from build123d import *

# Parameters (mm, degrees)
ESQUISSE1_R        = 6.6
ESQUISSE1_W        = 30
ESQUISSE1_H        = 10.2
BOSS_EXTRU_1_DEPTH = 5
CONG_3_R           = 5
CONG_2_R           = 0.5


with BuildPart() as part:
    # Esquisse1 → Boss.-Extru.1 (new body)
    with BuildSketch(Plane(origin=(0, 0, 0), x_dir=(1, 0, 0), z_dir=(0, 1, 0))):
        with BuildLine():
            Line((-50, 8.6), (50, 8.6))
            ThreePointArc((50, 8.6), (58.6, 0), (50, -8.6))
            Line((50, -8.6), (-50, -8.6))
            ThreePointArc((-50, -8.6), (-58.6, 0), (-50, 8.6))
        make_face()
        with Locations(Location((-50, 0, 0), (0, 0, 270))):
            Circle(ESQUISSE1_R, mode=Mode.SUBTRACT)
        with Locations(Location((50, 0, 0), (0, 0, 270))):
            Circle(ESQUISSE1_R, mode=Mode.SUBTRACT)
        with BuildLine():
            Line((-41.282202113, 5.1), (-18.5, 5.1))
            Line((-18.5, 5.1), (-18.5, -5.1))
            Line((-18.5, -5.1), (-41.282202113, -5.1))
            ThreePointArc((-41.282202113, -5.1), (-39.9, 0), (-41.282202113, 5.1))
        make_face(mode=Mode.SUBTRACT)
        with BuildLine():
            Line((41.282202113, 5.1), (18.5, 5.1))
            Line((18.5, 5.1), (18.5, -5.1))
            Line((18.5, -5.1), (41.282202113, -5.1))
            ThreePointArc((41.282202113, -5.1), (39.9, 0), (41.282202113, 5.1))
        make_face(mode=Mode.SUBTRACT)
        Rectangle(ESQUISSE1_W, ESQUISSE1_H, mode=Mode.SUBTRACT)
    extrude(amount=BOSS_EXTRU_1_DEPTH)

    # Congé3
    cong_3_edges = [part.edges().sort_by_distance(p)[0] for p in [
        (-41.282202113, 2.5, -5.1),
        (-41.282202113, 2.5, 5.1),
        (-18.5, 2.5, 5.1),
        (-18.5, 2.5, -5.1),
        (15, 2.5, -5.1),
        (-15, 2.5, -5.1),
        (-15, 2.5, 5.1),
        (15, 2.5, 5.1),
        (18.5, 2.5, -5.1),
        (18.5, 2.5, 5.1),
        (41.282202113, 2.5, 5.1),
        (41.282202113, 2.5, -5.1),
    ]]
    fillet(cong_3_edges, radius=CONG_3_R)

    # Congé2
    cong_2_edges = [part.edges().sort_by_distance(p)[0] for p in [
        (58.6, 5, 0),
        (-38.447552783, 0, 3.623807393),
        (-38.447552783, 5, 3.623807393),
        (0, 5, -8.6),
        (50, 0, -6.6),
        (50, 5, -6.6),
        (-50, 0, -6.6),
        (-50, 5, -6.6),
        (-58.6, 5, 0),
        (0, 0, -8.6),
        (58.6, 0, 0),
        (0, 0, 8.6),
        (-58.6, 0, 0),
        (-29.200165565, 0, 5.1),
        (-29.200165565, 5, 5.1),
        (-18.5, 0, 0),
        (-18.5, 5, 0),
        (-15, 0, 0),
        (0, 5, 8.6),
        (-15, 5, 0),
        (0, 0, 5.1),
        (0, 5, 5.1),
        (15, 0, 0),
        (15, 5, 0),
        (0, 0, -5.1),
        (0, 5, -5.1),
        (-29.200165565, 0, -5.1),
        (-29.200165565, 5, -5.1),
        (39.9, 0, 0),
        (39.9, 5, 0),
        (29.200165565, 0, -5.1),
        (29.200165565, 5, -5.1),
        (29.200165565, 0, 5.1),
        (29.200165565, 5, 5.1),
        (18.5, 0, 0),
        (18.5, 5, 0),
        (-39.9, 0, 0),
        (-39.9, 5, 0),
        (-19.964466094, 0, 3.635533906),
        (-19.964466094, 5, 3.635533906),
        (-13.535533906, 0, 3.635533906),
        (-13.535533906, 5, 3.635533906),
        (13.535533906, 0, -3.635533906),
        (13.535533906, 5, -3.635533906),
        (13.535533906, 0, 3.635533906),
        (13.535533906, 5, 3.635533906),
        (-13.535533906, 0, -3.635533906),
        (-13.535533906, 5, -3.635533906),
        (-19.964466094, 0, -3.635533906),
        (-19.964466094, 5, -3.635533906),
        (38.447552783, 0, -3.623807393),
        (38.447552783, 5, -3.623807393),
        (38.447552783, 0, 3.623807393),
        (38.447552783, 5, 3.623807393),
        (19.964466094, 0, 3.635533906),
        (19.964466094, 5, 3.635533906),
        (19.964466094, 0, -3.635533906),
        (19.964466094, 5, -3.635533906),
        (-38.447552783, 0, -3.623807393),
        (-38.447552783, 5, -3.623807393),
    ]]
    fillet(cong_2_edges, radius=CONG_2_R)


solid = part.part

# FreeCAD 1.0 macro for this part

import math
import FreeCAD as App
import Part
import Sketcher
from FreeCAD import Vector
Q = App.Units.Quantity


def edges_at(feature, points):
    """Names of the edges that pass closest to the given points."""
    edges = feature.Shape.Edges
    near = lambda p: min(range(len(edges)), key=lambda i: edges[i].distToShape(Part.Vertex(*p))[0])
    return sorted({f"Edge{near(p) + 1}" for p in points})


def add_polygon(sketch, points):
    """Adds a closed chain of lines whose ends are joined by coincident constraints."""
    first, n = sketch.GeometryCount, len(points)
    for a, b in zip(points, points[1:] + points[:1]):
        sketch.addGeometry(Part.LineSegment(App.Vector(*a, 0), App.Vector(*b, 0)), False)
    for i in range(n):
        sketch.addConstraint(Sketcher.Constraint("Coincident", first + i, 2, first + (i + 1) % n, 1))

doc = App.newDocument("Part")
body = doc.addObject("PartDesign::Body", "Body")

# Sketch on XZ plane
sketch1 = body.newObject("Sketcher::SketchObject", "Sketch")
sketch1.AttachmentSupport = (doc.getObject("XZ_Plane"), [""])
sketch1.MapMode = "FlatFace"
sketch1.addGeometry(Part.LineSegment(Vector(50, -8.6, 0), Vector(-50, -8.6, 0)), False)  # 0
sketch1.addGeometry(Part.ArcOfCircle(Part.Circle(Vector(-50, 0, 0), Vector(0, 0, 1), 8.6), math.radians(90), math.radians(270)), False)  # 1
sketch1.addGeometry(Part.LineSegment(Vector(-50, 8.6, 0), Vector(50, 8.6, 0)), False)  # 2
sketch1.addGeometry(Part.ArcOfCircle(Part.Circle(Vector(50, 0, 0), Vector(0, 0, 1), 8.6), math.radians(-90), math.radians(90)), False)  # 3
sketch1.addGeometry(Part.Circle(Vector(50, 0, 0), Vector(0, 0, 1), 6.6), False)  # 4
sketch1.addGeometry(Part.ArcOfCircle(Part.Circle(Vector(50, 0, 0), Vector(0, 0, 1), 10.1), math.radians(149.671934), math.radians(210.328066)), False)  # 5
sketch1.addGeometry(Part.LineSegment(Vector(41.282202, 5.1, 0), Vector(18.5, 5.1, 0)), False)  # 6
sketch1.addGeometry(Part.LineSegment(Vector(18.5, 5.1, 0), Vector(18.5, -5.1, 0)), False)  # 7
sketch1.addGeometry(Part.LineSegment(Vector(18.5, -5.1, 0), Vector(41.282202, -5.1, 0)), False)  # 8
add_polygon(sketch1, [(-15, 5.1), (-15, -5.1), (15, -5.1), (15, 5.1)])  # lines 9-12
sketch1.addGeometry(Part.LineSegment(Vector(-41.282202, -5.1, 0), Vector(-18.5, -5.1, 0)), False)  # 13
sketch1.addGeometry(Part.LineSegment(Vector(-18.5, -5.1, 0), Vector(-18.5, 5.1, 0)), False)  # 14
sketch1.addGeometry(Part.LineSegment(Vector(-18.5, 5.1, 0), Vector(-41.282202, 5.1, 0)), False)  # 15
sketch1.addGeometry(Part.ArcOfCircle(Part.Circle(Vector(-50, 0, 0), Vector(0, 0, 1), 10.1), math.radians(-30.328066), math.radians(30.328066)), False)  # 16
sketch1.addGeometry(Part.Circle(Vector(-50, 0, 0), Vector(0, 0, 1), 6.6), False)  # 17
sketch1.addConstraint([
    Sketcher.Constraint("Tangent", 0, 2, 1, 2),
    Sketcher.Constraint("Tangent", 1, 1, 2, 1),
    Sketcher.Constraint("Tangent", 2, 2, 3, 2),
    Sketcher.Constraint("Tangent", 3, 1, 0, 1),
    Sketcher.Constraint("Coincident", 5, 1, 6, 1),
    Sketcher.Constraint("Coincident", 6, 2, 7, 1),
    Sketcher.Constraint("Coincident", 7, 2, 8, 1),
    Sketcher.Constraint("Coincident", 8, 2, 5, 2),
    Sketcher.Constraint("Coincident", 13, 2, 14, 1),
    Sketcher.Constraint("Coincident", 14, 2, 15, 1),
    Sketcher.Constraint("Coincident", 15, 2, 16, 2),
    Sketcher.Constraint("Coincident", 16, 1, 13, 1),
    Sketcher.Constraint("Horizontal", 0),
    Sketcher.Constraint("Horizontal", 2),
    Sketcher.Constraint("Horizontal", 6),
    Sketcher.Constraint("Vertical", 7),
    Sketcher.Constraint("Horizontal", 8),
    Sketcher.Constraint("Vertical", 9),
    Sketcher.Constraint("Horizontal", 10),
    Sketcher.Constraint("Vertical", 11),
    Sketcher.Constraint("Horizontal", 12),
    Sketcher.Constraint("Horizontal", 13),
    Sketcher.Constraint("Vertical", 14),
    Sketcher.Constraint("Horizontal", 15),
    Sketcher.Constraint("Coincident", 4, 3, 3, 3),
    Sketcher.Constraint("Coincident", 5, 3, 3, 3),
    Sketcher.Constraint("Coincident", 16, 3, 1, 3),
    Sketcher.Constraint("Coincident", 17, 3, 1, 3),
    Sketcher.Constraint("Equal", 5, 16),
    Sketcher.Constraint("Equal", 4, 17),
    Sketcher.Constraint("Symmetric", 1, 3, 3, 3, -1, 1),
    Sketcher.Constraint("Symmetric", 9, 2, 11, 2, -1, 1),
    Sketcher.Constraint("Symmetric", 6, 2, 13, 2, -1, 1),
    Sketcher.Constraint("Horizontal", 8, 2, 9, 2),
    Sketcher.Constraint("Horizontal", 6, 2, 11, 2),
    Sketcher.Constraint("Horizontal", 12, 2, 14, 2),
    Sketcher.Constraint("Diameter", 4, Q("13.2 mm")),
    Sketcher.Constraint("Radius", 1, Q("8.6 mm")),
    Sketcher.Constraint("Radius", 5, Q("10.1 mm")),
    Sketcher.Constraint("DistanceX", 0, 2, 0, 1, Q("100 mm")),
    Sketcher.Constraint("DistanceX", 10, 1, 10, 2, Q("30 mm")),
    Sketcher.Constraint("DistanceY", 7, 2, 7, 1, Q("10.2 mm")),
    Sketcher.Constraint("DistanceX", -1, 1, 6, 2, Q("18.5 mm")),
])
pad1 = body.newObject("PartDesign::Pad", "Pad")
pad1.Profile = sketch1
pad1.Length = 5
pad1.Reversed = True
doc.recompute()

fillet = body.newObject("PartDesign::Fillet", "Fillet")
fillet.Base = (pad1, edges_at(pad1, [
    (-41.282, 2.5, -5.1),
    (-41.282, 2.5, 5.1),
    (-18.5, 2.5, 5.1),
    (-18.5, 2.5, -5.1),
    (15, 2.5, -5.1),
    (-15, 2.5, -5.1),
    (-15, 2.5, 5.1),
    (15, 2.5, 5.1),
    (18.5, 2.5, -5.1),
    (18.5, 2.5, 5.1),
    (41.282, 2.5, 5.1),
    (41.282, 2.5, -5.1),
]))
fillet.Radius = 5
doc.recompute()

fillet2 = body.newObject("PartDesign::Fillet", "Fillet001")
fillet2.Base = (fillet, edges_at(fillet, [
    (58.6, 5, 0),
    (-38.448, 0, 3.624),
    (-38.448, 5, 3.624),
    (0, 5, -8.6),
    (50, 0, -6.6),
    (50, 5, -6.6),
    (-50, 0, -6.6),
    (-50, 5, -6.6),
    (-58.6, 5, 0),
    (0, 0, -8.6),
    (58.6, 0, 0),
    (0, 0, 8.6),
    (-58.6, 0, 0),
    (-29.2, 0, 5.1),
    (-29.2, 5, 5.1),
    (-18.5, 0, 0),
    (-18.5, 5, 0),
    (-15, 0, 0),
    (0, 5, 8.6),
    (-15, 5, 0),
    (0, 0, 5.1),
    (0, 5, 5.1),
    (15, 0, 0),
    (15, 5, 0),
    (0, 0, -5.1),
    (0, 5, -5.1),
    (-29.2, 0, -5.1),
    (-29.2, 5, -5.1),
    (39.9, 0, 0),
    (39.9, 5, 0),
    (29.2, 0, -5.1),
    (29.2, 5, -5.1),
    (29.2, 0, 5.1),
    (29.2, 5, 5.1),
    (18.5, 0, 0),
    (18.5, 5, 0),
    (-39.9, 0, 0),
    (-39.9, 5, 0),
    (-19.964, 0, 3.636),
    (-19.964, 5, 3.636),
    (-13.536, 0, 3.636),
    (-13.536, 5, 3.636),
    (13.536, 0, -3.636),
    (13.536, 5, -3.636),
    (13.536, 0, 3.636),
    (13.536, 5, 3.636),
    (-13.536, 0, -3.636),
    (-13.536, 5, -3.636),
    (-19.964, 0, -3.636),
    (-19.964, 5, -3.636),
    (38.448, 0, -3.624),
    (38.448, 5, -3.624),
    (38.448, 0, 3.624),
    (38.448, 5, 3.624),
    (19.964, 0, 3.636),
    (19.964, 5, 3.636),
    (19.964, 0, -3.636),
    (19.964, 5, -3.636),
    (-38.448, 0, -3.624),
    (-38.448, 5, -3.624),
]))
fillet2.Radius = 0.5

doc.recompute()
